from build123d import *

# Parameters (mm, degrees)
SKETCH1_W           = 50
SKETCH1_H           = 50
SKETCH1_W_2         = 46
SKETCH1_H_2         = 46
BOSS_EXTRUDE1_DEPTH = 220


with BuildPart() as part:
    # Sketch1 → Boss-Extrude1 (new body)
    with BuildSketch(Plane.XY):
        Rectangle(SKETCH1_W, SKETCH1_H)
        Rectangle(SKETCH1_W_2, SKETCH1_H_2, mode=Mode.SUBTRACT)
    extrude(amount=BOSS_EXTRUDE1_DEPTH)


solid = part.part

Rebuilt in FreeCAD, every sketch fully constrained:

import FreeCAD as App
import Part
import Sketcher

V = App.Vector
Q = App.Units.Quantity

doc = App.newDocument("Part")
body = doc.addObject("PartDesign::Body", "Body")

sketch1 = body.newObject("Sketcher::SketchObject", "Sketch")
sketch1.AttachmentSupport = (doc.getObject("XY_Plane"), [""])
sketch1.MapMode = "FlatFace"
sketch1.addGeometry(Part.LineSegment(V(-25, 25, 0), V(-25, -25, 0)), False)
sketch1.addGeometry(Part.LineSegment(V(-25, -25, 0), V(25, -25, 0)), False)
sketch1.addGeometry(Part.LineSegment(V(25, -25, 0), V(25, 25, 0)), False)
sketch1.addGeometry(Part.LineSegment(V(25, 25, 0), V(-25, 25, 0)), False)
sketch1.addGeometry(Part.LineSegment(V(23, -23, 0), V(-23, -23, 0)), False)
sketch1.addGeometry(Part.LineSegment(V(-23, -23, 0), V(-23, 23, 0)), False)
sketch1.addGeometry(Part.LineSegment(V(-23, 23, 0), V(23, 23, 0)), False)
sketch1.addGeometry(Part.LineSegment(V(23, 23, 0), V(23, -23, 0)), False)
sketch1.addConstraint(Sketcher.Constraint("Coincident", 0, 2, 1, 1))
sketch1.addConstraint(Sketcher.Constraint("Coincident", 1, 2, 2, 1))
sketch1.addConstraint(Sketcher.Constraint("Coincident", 2, 2, 3, 1))
sketch1.addConstraint(Sketcher.Constraint("Coincident", 3, 2, 0, 1))
sketch1.addConstraint(Sketcher.Constraint("Coincident", 4, 2, 5, 1))
sketch1.addConstraint(Sketcher.Constraint("Coincident", 5, 2, 6, 1))
sketch1.addConstraint(Sketcher.Constraint("Coincident", 6, 2, 7, 1))
sketch1.addConstraint(Sketcher.Constraint("Coincident", 7, 2, 4, 1))
sketch1.addConstraint(Sketcher.Constraint("Vertical", 0))
sketch1.addConstraint(Sketcher.Constraint("Horizontal", 1))
sketch1.addConstraint(Sketcher.Constraint("Vertical", 2))
sketch1.addConstraint(Sketcher.Constraint("Horizontal", 3))
sketch1.addConstraint(Sketcher.Constraint("Horizontal", 4))
sketch1.addConstraint(Sketcher.Constraint("Vertical", 5))
sketch1.addConstraint(Sketcher.Constraint("Horizontal", 6))
sketch1.addConstraint(Sketcher.Constraint("Vertical", 7))
sketch1.addConstraint(Sketcher.Constraint("Symmetric", 0, 2, 2, 2, -1, 1))
sketch1.addConstraint(Sketcher.Constraint("Symmetric", 4, 2, 6, 2, -1, 1))
sketch1.addConstraint(Sketcher.Constraint("Equal", 3, 0))
sketch1.addConstraint(Sketcher.Constraint("Equal", 6, 5))
sketch1.addConstraint(Sketcher.Constraint("DistanceX", 1, 1, 1, 2, Q("50 mm")))
sketch1.addConstraint(Sketcher.Constraint("DistanceX", 4, 2, 4, 1, Q("46 mm")))
pad1 = body.newObject("PartDesign::Pad", "Pad")
pad1.Profile = sketch1
pad1.Length = 220

doc.recompute()
